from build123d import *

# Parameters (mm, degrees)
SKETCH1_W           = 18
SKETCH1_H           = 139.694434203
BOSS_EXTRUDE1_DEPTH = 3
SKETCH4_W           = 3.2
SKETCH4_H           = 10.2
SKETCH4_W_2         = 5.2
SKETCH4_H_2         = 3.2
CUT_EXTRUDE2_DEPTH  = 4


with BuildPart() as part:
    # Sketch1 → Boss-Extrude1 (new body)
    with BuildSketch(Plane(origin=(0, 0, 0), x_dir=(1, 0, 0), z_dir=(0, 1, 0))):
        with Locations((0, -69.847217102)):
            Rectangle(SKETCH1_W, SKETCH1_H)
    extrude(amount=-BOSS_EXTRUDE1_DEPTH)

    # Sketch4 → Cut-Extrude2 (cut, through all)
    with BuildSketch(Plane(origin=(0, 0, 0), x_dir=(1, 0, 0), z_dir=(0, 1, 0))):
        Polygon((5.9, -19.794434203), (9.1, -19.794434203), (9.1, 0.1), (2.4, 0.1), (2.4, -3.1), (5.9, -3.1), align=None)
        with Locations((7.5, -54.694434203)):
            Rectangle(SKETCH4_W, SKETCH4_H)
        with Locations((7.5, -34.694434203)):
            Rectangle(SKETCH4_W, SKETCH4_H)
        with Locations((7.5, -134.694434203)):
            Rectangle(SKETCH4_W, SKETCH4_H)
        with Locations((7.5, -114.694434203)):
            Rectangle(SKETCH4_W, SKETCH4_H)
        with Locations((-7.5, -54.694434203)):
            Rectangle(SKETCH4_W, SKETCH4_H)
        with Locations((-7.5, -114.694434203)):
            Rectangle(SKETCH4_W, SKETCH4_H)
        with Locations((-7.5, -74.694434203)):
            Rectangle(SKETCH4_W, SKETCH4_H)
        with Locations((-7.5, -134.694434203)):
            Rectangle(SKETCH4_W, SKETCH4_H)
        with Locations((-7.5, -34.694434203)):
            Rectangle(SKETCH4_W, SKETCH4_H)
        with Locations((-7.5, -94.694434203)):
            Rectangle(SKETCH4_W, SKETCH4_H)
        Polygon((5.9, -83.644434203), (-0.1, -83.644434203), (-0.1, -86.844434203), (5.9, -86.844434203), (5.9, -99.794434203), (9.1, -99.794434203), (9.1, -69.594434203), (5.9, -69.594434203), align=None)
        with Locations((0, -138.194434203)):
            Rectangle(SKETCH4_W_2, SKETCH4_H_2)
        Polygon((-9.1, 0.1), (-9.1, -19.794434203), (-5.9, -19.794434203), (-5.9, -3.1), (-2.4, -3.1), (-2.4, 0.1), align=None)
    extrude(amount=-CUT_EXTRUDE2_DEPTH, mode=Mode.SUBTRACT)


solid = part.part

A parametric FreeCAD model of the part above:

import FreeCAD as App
import Part
import Sketcher
from FreeCAD import Vector
Q = App.Units.Quantity

doc = App.newDocument("Part")
body = doc.addObject("PartDesign::Body", "Body")

# Sketch on XZ plane
sketch1 = body.newObject("Sketcher::SketchObject", "Sketch")
sketch1.AttachmentSupport = (doc.getObject("XZ_Plane"), [""])
sketch1.MapMode = "FlatFace"
sketch1.addGeometry([
    Part.LineSegment(Vector(-9, 0, 0), Vector(-9, 140, 0)),
    Part.LineSegment(Vector(-9, 140, 0), Vector(9, 140, 0)),
    Part.LineSegment(Vector(9, 140, 0), Vector(9, 0, 0)),
    Part.LineSegment(Vector(9, 0, 0), Vector(-9, 0, 0)),
], False)
sketch1.addConstraint([
    Sketcher.Constraint("Coincident", 0, 2, 1, 1),
    Sketcher.Constraint("Coincident", 1, 2, 2, 1),
    Sketcher.Constraint("Coincident", 2, 2, 3, 1),
    Sketcher.Constraint("Coincident", 3, 2, 0, 1),
    Sketcher.Constraint("Vertical", 0),
    Sketcher.Constraint("Horizontal", 1),
    Sketcher.Constraint("Vertical", 2),
    Sketcher.Constraint("Horizontal", 3),
    Sketcher.Constraint("Symmetric", 2, 2, 3, 2, -1, 1),
    Sketcher.Constraint("DistanceX", 1, 1, 1, 2, Q("18 mm")),
    Sketcher.Constraint("DistanceY", 0, 1, 0, 2, Q("139.694434 mm")),
])
pad1 = body.newObject("PartDesign::Pad", "Pad")
pad1.Profile = sketch1
pad1.Length = 3

# Sketch on XZ plane
sketch2 = body.newObject("Sketcher::SketchObject", "Sketch001")
sketch2.AttachmentSupport = (doc.getObject("XZ_Plane"), [""])
sketch2.MapMode = "FlatFace"
sketch2.addGeometry([
    Part.LineSegment(Vector(5.9, 19.8, 0), Vector(9.1, 19.8, 0)),  # 0
    Part.LineSegment(Vector(9.1, 19.8, 0), Vector(9.1, -0.1, 0)),  # 1
    Part.LineSegment(Vector(9.1, -0.1, 0), Vector(2.4, -0.1, 0)),  # 2
    Part.LineSegment(Vector(2.4, -0.1, 0), Vector(2.4, 3.1, 0)),  # 3
    Part.LineSegment(Vector(2.4, 3.1, 0), Vector(5.9, 3.1, 0)),  # 4
    Part.LineSegment(Vector(5.9, 3.1, 0), Vector(5.9, 19.8, 0)),  # 5
    Part.LineSegment(Vector(5.9, 49.6, 0), Vector(5.9, 59.8, 0)),  # 6
    Part.LineSegment(Vector(5.9, 59.8, 0), Vector(9.1, 59.8, 0)),  # 7
    Part.LineSegment(Vector(9.1, 59.8, 0), Vector(9.1, 49.6, 0)),  # 8
    Part.LineSegment(Vector(9.1, 49.6, 0), Vector(5.9, 49.6, 0)),  # 9
    Part.LineSegment(Vector(5.9, 29.6, 0), Vector(5.9, 39.8, 0)),  # 10
    Part.LineSegment(Vector(5.9, 39.8, 0), Vector(9.1, 39.8, 0)),  # 11
    Part.LineSegment(Vector(9.1, 39.8, 0), Vector(9.1, 29.6, 0)),  # 12
    Part.LineSegment(Vector(9.1, 29.6, 0), Vector(5.9, 29.6, 0)),  # 13
    Part.LineSegment(Vector(5.9, 129.6, 0), Vector(5.9, 139.8, 0)),  # 14
    Part.LineSegment(Vector(5.9, 139.8, 0), Vector(9.1, 139.8, 0)),  # 15
    Part.LineSegment(Vector(9.1, 139.8, 0), Vector(9.1, 129.6, 0)),  # 16
    Part.LineSegment(Vector(9.1, 129.6, 0), Vector(5.9, 129.6, 0)),  # 17
    Part.LineSegment(Vector(5.9, 109.6, 0), Vector(5.9, 119.8, 0)),  # 18
    Part.LineSegment(Vector(5.9, 119.8, 0), Vector(9.1, 119.8, 0)),  # 19
    Part.LineSegment(Vector(9.1, 119.8, 0), Vector(9.1, 109.6, 0)),  # 20
    Part.LineSegment(Vector(9.1, 109.6, 0), Vector(5.9, 109.6, 0)),  # 21
    Part.LineSegment(Vector(-9.1, 49.6, 0), Vector(-9.1, 59.8, 0)),  # 22
    Part.LineSegment(Vector(-9.1, 59.8, 0), Vector(-5.9, 59.8, 0)),  # 23
    Part.LineSegment(Vector(-5.9, 59.8, 0), Vector(-5.9, 49.6, 0)),  # 24
    Part.LineSegment(Vector(-5.9, 49.6, 0), Vector(-9.1, 49.6, 0)),  # 25
    Part.LineSegment(Vector(-9.1, 109.6, 0), Vector(-9.1, 119.8, 0)),  # 26
    Part.LineSegment(Vector(-9.1, 119.8, 0), Vector(-5.9, 119.8, 0)),  # 27
    Part.LineSegment(Vector(-5.9, 119.8, 0), Vector(-5.9, 109.6, 0)),  # 28
    Part.LineSegment(Vector(-5.9, 109.6, 0), Vector(-9.1, 109.6, 0)),  # 29
    Part.LineSegment(Vector(-9.1, 69.6, 0), Vector(-9.1, 79.8, 0)),  # 30
    Part.LineSegment(Vector(-9.1, 79.8, 0), Vector(-5.9, 79.8, 0)),  # 31
    Part.LineSegment(Vector(-5.9, 79.8, 0), Vector(-5.9, 69.6, 0)),  # 32
    Part.LineSegment(Vector(-5.9, 69.6, 0), Vector(-9.1, 69.6, 0)),  # 33
    Part.LineSegment(Vector(-9.1, 129.6, 0), Vector(-9.1, 139.8, 0)),  # 34
    Part.LineSegment(Vector(-9.1, 139.8, 0), Vector(-5.9, 139.8, 0)),  # 35
    Part.LineSegment(Vector(-5.9, 139.8, 0), Vector(-5.9, 129.6, 0)),  # 36
    Part.LineSegment(Vector(-5.9, 129.6, 0), Vector(-9.1, 129.6, 0)),  # 37
    Part.LineSegment(Vector(-9.1, 29.6, 0), Vector(-9.1, 39.8, 0)),  # 38
    Part.LineSegment(Vector(-9.1, 39.8, 0), Vector(-5.9, 39.8, 0)),  # 39
    Part.LineSegment(Vector(-5.9, 39.8, 0), Vector(-5.9, 29.6, 0)),  # 40
    Part.LineSegment(Vector(-5.9, 29.6, 0), Vector(-9.1, 29.6, 0)),  # 41
    Part.LineSegment(Vector(-9.1, 89.6, 0), Vector(-9.1, 99.8, 0)),  # 42
    Part.LineSegment(Vector(-9.1, 99.8, 0), Vector(-5.9, 99.8, 0)),  # 43
    Part.LineSegment(Vector(-5.9, 99.8, 0), Vector(-5.9, 89.6, 0)),  # 44
    Part.LineSegment(Vector(-5.9, 89.6, 0), Vector(-9.1, 89.6, 0)),  # 45
    Part.LineSegment(Vector(5.9, 83.6, 0), Vector(-0.1, 83.6, 0)),  # 46
    Part.LineSegment(Vector(-0.1, 83.6, 0), Vector(-0.1, 86.8, 0)),  # 47
    Part.LineSegment(Vector(-0.1, 86.8, 0), Vector(5.9, 86.8, 0)),  # 48
    Part.LineSegment(Vector(5.9, 86.8, 0), Vector(5.9, 99.8, 0)),  # 49
    Part.LineSegment(Vector(5.9, 99.8, 0), Vector(9.1, 99.8, 0)),  # 50
    Part.LineSegment(Vector(9.1, 99.8, 0), Vector(9.1, 69.6, 0)),  # 51
    Part.LineSegment(Vector(9.1, 69.6, 0), Vector(5.9, 69.6, 0)),  # 52
    Part.LineSegment(Vector(5.9, 69.6, 0), Vector(5.9, 83.6, 0)),  # 53
    Part.LineSegment(Vector(-2.6, 136.6, 0), Vector(-2.6, 139.8, 0)),  # 54
    Part.LineSegment(Vector(-2.6, 139.8, 0), Vector(2.6, 139.8, 0)),  # 55
    Part.LineSegment(Vector(2.6, 139.8, 0), Vector(2.6, 136.6, 0)),  # 56
    Part.LineSegment(Vector(2.6, 136.6, 0), Vector(-2.6, 136.6, 0)),  # 57
    Part.LineSegment(Vector(-9.1, -0.1, 0), Vector(-9.1, 19.8, 0)),  # 58
    Part.LineSegment(Vector(-9.1, 19.8, 0), Vector(-5.9, 19.8, 0)),  # 59
    Part.LineSegment(Vector(-5.9, 19.8, 0), Vector(-5.9, 3.1, 0)),  # 60
    Part.LineSegment(Vector(-5.9, 3.1, 0), Vector(-2.4, 3.1, 0)),  # 61
    Part.LineSegment(Vector(-2.4, 3.1, 0), Vector(-2.4, -0.1, 0)),  # 62
    Part.LineSegment(Vector(-2.4, -0.1, 0), Vector(-9.1, -0.1, 0)),  # 63
], False)
sketch2.addConstraint([
    Sketcher.Constraint("Coincident", 0, 2, 1, 1),
    Sketcher.Constraint("Coincident", 1, 2, 2, 1),
    Sketcher.Constraint("Coincident", 2, 2, 3, 1),
    Sketcher.Constraint("Coincident", 3, 2, 4, 1),
    Sketcher.Constraint("Coincident", 4, 2, 5, 1),
    Sketcher.Constraint("Coincident", 5, 2, 0, 1),
    Sketcher.Constraint("Coincident", 6, 2, 7, 1),
    Sketcher.Constraint("Coincident", 7, 2, 8, 1),
    Sketcher.Constraint("Coincident", 8, 2, 9, 1),
    Sketcher.Constraint("Coincident", 9, 2, 6, 1),
    Sketcher.Constraint("Coincident", 10, 2, 11, 1),
    Sketcher.Constraint("Coincident", 11, 2, 12, 1),
    Sketcher.Constraint("Coincident", 12, 2, 13, 1),
    Sketcher.Constraint("Coincident", 13, 2, 10, 1),
    Sketcher.Constraint("Coincident", 14, 2, 15, 1),
    Sketcher.Constraint("Coincident", 15, 2, 16, 1),
    Sketcher.Constraint("Coincident", 16, 2, 17, 1),
    Sketcher.Constraint("Coincident", 17, 2, 14, 1),
    Sketcher.Constraint("Coincident", 18, 2, 19, 1),
    Sketcher.Constraint("Coincident", 19, 2, 20, 1),
    Sketcher.Constraint("Coincident", 20, 2, 21, 1),
    Sketcher.Constraint("Coincident", 21, 2, 18, 1),
    Sketcher.Constraint("Coincident", 22, 2, 23, 1),
    Sketcher.Constraint("Coincident", 23, 2, 24, 1),
    Sketcher.Constraint("Coincident", 24, 2, 25, 1),
    Sketcher.Constraint("Coincident", 25, 2, 22, 1),
    Sketcher.Constraint("Coincident", 26, 2, 27, 1),
    Sketcher.Constraint("Coincident", 27, 2, 28, 1),
    Sketcher.Constraint("Coincident", 28, 2, 29, 1),
    Sketcher.Constraint("Coincident", 29, 2, 26, 1),
    Sketcher.Constraint("Coincident", 30, 2, 31, 1),
    Sketcher.Constraint("Coincident", 31, 2, 32, 1),
    Sketcher.Constraint("Coincident", 32, 2, 33, 1),
    Sketcher.Constraint("Coincident", 33, 2, 30, 1),
    Sketcher.Constraint("Coincident", 34, 2, 35, 1),
    Sketcher.Constraint("Coincident", 35, 2, 36, 1),
    Sketcher.Constraint("Coincident", 36, 2, 37, 1),
    Sketcher.Constraint("Coincident", 37, 2, 34, 1),
    Sketcher.Constraint("Coincident", 38, 2, 39, 1),
    Sketcher.Constraint("Coincident", 39, 2, 40, 1),
    Sketcher.Constraint("Coincident", 40, 2, 41, 1),
    Sketcher.Constraint("Coincident", 41, 2, 38, 1),
    Sketcher.Constraint("Coincident", 42, 2, 43, 1),
    Sketcher.Constraint("Coincident", 43, 2, 44, 1),
    Sketcher.Constraint("Coincident", 44, 2, 45, 1),
    Sketcher.Constraint("Coincident", 45, 2, 42, 1),
    Sketcher.Constraint("Coincident", 46, 2, 47, 1),
    Sketcher.Constraint("Coincident", 47, 2, 48, 1),
    Sketcher.Constraint("Coincident", 48, 2, 49, 1),
    Sketcher.Constraint("Coincident", 49, 2, 50, 1),
    Sketcher.Constraint("Coincident", 50, 2, 51, 1),
    Sketcher.Constraint("Coincident", 51, 2, 52, 1),
    Sketcher.Constraint("Coincident", 52, 2, 53, 1),
    Sketcher.Constraint("Coincident", 53, 2, 46, 1),
    Sketcher.Constraint("Coincident", 54, 2, 55, 1),
    Sketcher.Constraint("Coincident", 55, 2, 56, 1),
    Sketcher.Constraint("Coincident", 56, 2, 57, 1),
    Sketcher.Constraint("Coincident", 57, 2, 54, 1),
    Sketcher.Constraint("Coincident", 58, 2, 59, 1),
    Sketcher.Constraint("Coincident", 59, 2, 60, 1),
    Sketcher.Constraint("Coincident", 60, 2, 61, 1),
    Sketcher.Constraint("Coincident", 61, 2, 62, 1),
    Sketcher.Constraint("Coincident", 62, 2, 63, 1),
    Sketcher.Constraint("Coincident", 63, 2, 58, 1),
    Sketcher.Constraint("Horizontal", 0),
    Sketcher.Constraint("Vertical", 1),
    Sketcher.Constraint("Horizontal", 2),
    Sketcher.Constraint("Vertical", 3),
    Sketcher.Constraint("Horizontal", 4),
    Sketcher.Constraint("Vertical", 5),
    Sketcher.Constraint("Vertical", 6),
    Sketcher.Constraint("Horizontal", 7),
    Sketcher.Constraint("Vertical", 8),
    Sketcher.Constraint("Horizontal", 9),
    Sketcher.Constraint("Vertical", 10),
    Sketcher.Constraint("Horizontal", 11),
    Sketcher.Constraint("Vertical", 12),
    Sketcher.Constraint("Horizontal", 13),
    Sketcher.Constraint("Vertical", 14),
    Sketcher.Constraint("Horizontal", 15),
    Sketcher.Constraint("Vertical", 16),
    Sketcher.Constraint("Horizontal", 17),
    Sketcher.Constraint("Vertical", 18),
    Sketcher.Constraint("Horizontal", 19),
    Sketcher.Constraint("Vertical", 20),
    Sketcher.Constraint("Horizontal", 21),
    Sketcher.Constraint("Vertical", 22),
    Sketcher.Constraint("Horizontal", 23),
    Sketcher.Constraint("Vertical", 24),
    Sketcher.Constraint("Horizontal", 25),
    Sketcher.Constraint("Vertical", 26),
    Sketcher.Constraint("Horizontal", 27),
    Sketcher.Constraint("Vertical", 28),
    Sketcher.Constraint("Horizontal", 29),
    Sketcher.Constraint("Vertical", 30),
    Sketcher.Constraint("Horizontal", 31),
    Sketcher.Constraint("Vertical", 32),
    Sketcher.Constraint("Horizontal", 33),
    Sketcher.Constraint("Vertical", 34),
    Sketcher.Constraint("Horizontal", 35),
    Sketcher.Constraint("Vertical", 36),
    Sketcher.Constraint("Horizontal", 37),
    Sketcher.Constraint("Vertical", 38),
    Sketcher.Constraint("Horizontal", 39),
    Sketcher.Constraint("Vertical", 40),
    Sketcher.Constraint("Horizontal", 41),
    Sketcher.Constraint("Vertical", 42),
    Sketcher.Constraint("Horizontal", 43),
    Sketcher.Constraint("Vertical", 44),
    Sketcher.Constraint("Horizontal", 45),
    Sketcher.Constraint("Horizontal", 46),
    Sketcher.Constraint("Vertical", 47),
    Sketcher.Constraint("Horizontal", 48),
    Sketcher.Constraint("Vertical", 49),
    Sketcher.Constraint("Horizontal", 50),
    Sketcher.Constraint("Vertical", 51),
    Sketcher.Constraint("Horizontal", 52),
    Sketcher.Constraint("Vertical", 53),
    Sketcher.Constraint("Vertical", 54),
    Sketcher.Constraint("Horizontal", 55),
    Sketcher.Constraint("Vertical", 56),
    Sketcher.Constraint("Horizontal", 57),
    Sketcher.Constraint("Vertical", 58),
    Sketcher.Constraint("Horizontal", 59),
    Sketcher.Constraint("Vertical", 60),
    Sketcher.Constraint("Horizontal", 61),
    Sketcher.Constraint("Vertical", 62),
    Sketcher.Constraint("Horizontal", 63),
    Sketcher.Constraint("Symmetric", 7, 2, 22, 2, -2),
    Sketcher.Constraint("Symmetric", 9, 2, 24, 2, -2),
    Sketcher.Constraint("Symmetric", 19, 2, 26, 2, -2),
    Sketcher.Constraint("Symmetric", 21, 2, 28, 2, -2),
    Sketcher.Constraint("Symmetric", 15, 2, 34, 2, -2),
    Sketcher.Constraint("Symmetric", 17, 2, 36, 2, -2),
    Sketcher.Constraint("Symmetric", 11, 2, 38, 2, -2),
    Sketcher.Constraint("Symmetric", 13, 2, 40, 2, -2),
    Sketcher.Constraint("Symmetric", 43, 2, 49, 2, -2),
    Sketcher.Constraint("Symmetric", 33, 2, 51, 2, -2),
    Sketcher.Constraint("Symmetric", 0, 2, 58, 2, -2),
    Sketcher.Constraint("Symmetric", 4, 2, 60, 2, -2),
    Sketcher.Constraint("Symmetric", 2, 2, 62, 2, -2),
    Sketcher.Constraint("Horizontal", 35, 2, 54, 2),
    Sketcher.Constraint("Vertical", 5, 2, 6, 2),
    Sketcher.Constraint("Vertical", 1, 2, 7, 2),
    Sketcher.Constraint("Vertical", 9, 2, 10, 2),
    Sketcher.Constraint("Vertical", 8, 2, 11, 2),
    Sketcher.Constraint("Vertical", 13, 2, 14, 2),
    Sketcher.Constraint("Vertical", 12, 2, 15, 2),
    Sketcher.Constraint("Vertical", 17, 2, 18, 2),
    Sketcher.Constraint("Vertical", 16, 2, 19, 2),
    Sketcher.Constraint("Vertical", 29, 2, 30, 2),
    Sketcher.Constraint("Vertical", 28, 2, 31, 2),
    Sketcher.Constraint("Vertical", 41, 2, 42, 2),
    Sketcher.Constraint("Vertical", 40, 2, 43, 2),
    Sketcher.Constraint("Vertical", 49, 2, 52, 2),
    Sketcher.Constraint("Equal", 59, 3),
    Sketcher.Constraint("Equal", 8, 10),
    Sketcher.Constraint("Equal", 12, 14),
    Sketcher.Constraint("Equal", 16, 18),
    Sketcher.Constraint("Equal", 28, 30),
    Sketcher.Constraint("Equal", 40, 42),
    Sketcher.Constraint("Equal", 3, 47),
    Sketcher.Constraint("Equal", 47, 54),
    Sketcher.Constraint("DistanceX", 46, 2, 46, 1, Q("6 mm")),
    Sketcher.Constraint("DistanceX", 0, 1, 0, 2, Q("3.2 mm")),
    Sketcher.Constraint("DistanceX", 2, 2, 2, 1, Q("6.7 mm")),
    Sketcher.Constraint("DistanceX", 55, 1, 55, 2, Q("5.2 mm")),
    Sketcher.Constraint("DistanceY", 6, 1, 6, 2, Q("10.2 mm")),
    Sketcher.Constraint("DistanceY", 51, 2, 51, 1, Q("30.2 mm")),
    Sketcher.Constraint("DistanceY", 49, 1, 49, 2, Q("12.95 mm")),
    Sketcher.Constraint("DistanceX", -1, 1, 0, 2, Q("9.1 mm")),
    Sketcher.Constraint("DistanceY", 1, 2, -1, 1, Q("0.1 mm")),
    Sketcher.Constraint("DistanceX", 54, 2, -1, 1, Q("2.6 mm")),
    Sketcher.Constraint("DistanceY", 1, 2, 1, 1, Q("19.894434 mm")),
    Sketcher.Constraint("DistanceY", -1, 1, 6, 2, Q("59.794434 mm")),
    Sketcher.Constraint("DistanceY", -1, 1, 10, 2, Q("39.794434 mm")),
    Sketcher.Constraint("DistanceY", -1, 1, 14, 2, Q("139.794434 mm")),
    Sketcher.Constraint("DistanceY", -1, 1, 18, 2, Q("119.794434 mm")),
    Sketcher.Constraint("DistanceY", -1, 1, 30, 2, Q("79.794434 mm")),
])
pocket1 = body.newObject("PartDesign::Pocket", "Pocket")
pocket1.Profile = sketch2
pocket1.Type = "ThroughAll"
pocket1.Reversed = True

doc.recompute()
